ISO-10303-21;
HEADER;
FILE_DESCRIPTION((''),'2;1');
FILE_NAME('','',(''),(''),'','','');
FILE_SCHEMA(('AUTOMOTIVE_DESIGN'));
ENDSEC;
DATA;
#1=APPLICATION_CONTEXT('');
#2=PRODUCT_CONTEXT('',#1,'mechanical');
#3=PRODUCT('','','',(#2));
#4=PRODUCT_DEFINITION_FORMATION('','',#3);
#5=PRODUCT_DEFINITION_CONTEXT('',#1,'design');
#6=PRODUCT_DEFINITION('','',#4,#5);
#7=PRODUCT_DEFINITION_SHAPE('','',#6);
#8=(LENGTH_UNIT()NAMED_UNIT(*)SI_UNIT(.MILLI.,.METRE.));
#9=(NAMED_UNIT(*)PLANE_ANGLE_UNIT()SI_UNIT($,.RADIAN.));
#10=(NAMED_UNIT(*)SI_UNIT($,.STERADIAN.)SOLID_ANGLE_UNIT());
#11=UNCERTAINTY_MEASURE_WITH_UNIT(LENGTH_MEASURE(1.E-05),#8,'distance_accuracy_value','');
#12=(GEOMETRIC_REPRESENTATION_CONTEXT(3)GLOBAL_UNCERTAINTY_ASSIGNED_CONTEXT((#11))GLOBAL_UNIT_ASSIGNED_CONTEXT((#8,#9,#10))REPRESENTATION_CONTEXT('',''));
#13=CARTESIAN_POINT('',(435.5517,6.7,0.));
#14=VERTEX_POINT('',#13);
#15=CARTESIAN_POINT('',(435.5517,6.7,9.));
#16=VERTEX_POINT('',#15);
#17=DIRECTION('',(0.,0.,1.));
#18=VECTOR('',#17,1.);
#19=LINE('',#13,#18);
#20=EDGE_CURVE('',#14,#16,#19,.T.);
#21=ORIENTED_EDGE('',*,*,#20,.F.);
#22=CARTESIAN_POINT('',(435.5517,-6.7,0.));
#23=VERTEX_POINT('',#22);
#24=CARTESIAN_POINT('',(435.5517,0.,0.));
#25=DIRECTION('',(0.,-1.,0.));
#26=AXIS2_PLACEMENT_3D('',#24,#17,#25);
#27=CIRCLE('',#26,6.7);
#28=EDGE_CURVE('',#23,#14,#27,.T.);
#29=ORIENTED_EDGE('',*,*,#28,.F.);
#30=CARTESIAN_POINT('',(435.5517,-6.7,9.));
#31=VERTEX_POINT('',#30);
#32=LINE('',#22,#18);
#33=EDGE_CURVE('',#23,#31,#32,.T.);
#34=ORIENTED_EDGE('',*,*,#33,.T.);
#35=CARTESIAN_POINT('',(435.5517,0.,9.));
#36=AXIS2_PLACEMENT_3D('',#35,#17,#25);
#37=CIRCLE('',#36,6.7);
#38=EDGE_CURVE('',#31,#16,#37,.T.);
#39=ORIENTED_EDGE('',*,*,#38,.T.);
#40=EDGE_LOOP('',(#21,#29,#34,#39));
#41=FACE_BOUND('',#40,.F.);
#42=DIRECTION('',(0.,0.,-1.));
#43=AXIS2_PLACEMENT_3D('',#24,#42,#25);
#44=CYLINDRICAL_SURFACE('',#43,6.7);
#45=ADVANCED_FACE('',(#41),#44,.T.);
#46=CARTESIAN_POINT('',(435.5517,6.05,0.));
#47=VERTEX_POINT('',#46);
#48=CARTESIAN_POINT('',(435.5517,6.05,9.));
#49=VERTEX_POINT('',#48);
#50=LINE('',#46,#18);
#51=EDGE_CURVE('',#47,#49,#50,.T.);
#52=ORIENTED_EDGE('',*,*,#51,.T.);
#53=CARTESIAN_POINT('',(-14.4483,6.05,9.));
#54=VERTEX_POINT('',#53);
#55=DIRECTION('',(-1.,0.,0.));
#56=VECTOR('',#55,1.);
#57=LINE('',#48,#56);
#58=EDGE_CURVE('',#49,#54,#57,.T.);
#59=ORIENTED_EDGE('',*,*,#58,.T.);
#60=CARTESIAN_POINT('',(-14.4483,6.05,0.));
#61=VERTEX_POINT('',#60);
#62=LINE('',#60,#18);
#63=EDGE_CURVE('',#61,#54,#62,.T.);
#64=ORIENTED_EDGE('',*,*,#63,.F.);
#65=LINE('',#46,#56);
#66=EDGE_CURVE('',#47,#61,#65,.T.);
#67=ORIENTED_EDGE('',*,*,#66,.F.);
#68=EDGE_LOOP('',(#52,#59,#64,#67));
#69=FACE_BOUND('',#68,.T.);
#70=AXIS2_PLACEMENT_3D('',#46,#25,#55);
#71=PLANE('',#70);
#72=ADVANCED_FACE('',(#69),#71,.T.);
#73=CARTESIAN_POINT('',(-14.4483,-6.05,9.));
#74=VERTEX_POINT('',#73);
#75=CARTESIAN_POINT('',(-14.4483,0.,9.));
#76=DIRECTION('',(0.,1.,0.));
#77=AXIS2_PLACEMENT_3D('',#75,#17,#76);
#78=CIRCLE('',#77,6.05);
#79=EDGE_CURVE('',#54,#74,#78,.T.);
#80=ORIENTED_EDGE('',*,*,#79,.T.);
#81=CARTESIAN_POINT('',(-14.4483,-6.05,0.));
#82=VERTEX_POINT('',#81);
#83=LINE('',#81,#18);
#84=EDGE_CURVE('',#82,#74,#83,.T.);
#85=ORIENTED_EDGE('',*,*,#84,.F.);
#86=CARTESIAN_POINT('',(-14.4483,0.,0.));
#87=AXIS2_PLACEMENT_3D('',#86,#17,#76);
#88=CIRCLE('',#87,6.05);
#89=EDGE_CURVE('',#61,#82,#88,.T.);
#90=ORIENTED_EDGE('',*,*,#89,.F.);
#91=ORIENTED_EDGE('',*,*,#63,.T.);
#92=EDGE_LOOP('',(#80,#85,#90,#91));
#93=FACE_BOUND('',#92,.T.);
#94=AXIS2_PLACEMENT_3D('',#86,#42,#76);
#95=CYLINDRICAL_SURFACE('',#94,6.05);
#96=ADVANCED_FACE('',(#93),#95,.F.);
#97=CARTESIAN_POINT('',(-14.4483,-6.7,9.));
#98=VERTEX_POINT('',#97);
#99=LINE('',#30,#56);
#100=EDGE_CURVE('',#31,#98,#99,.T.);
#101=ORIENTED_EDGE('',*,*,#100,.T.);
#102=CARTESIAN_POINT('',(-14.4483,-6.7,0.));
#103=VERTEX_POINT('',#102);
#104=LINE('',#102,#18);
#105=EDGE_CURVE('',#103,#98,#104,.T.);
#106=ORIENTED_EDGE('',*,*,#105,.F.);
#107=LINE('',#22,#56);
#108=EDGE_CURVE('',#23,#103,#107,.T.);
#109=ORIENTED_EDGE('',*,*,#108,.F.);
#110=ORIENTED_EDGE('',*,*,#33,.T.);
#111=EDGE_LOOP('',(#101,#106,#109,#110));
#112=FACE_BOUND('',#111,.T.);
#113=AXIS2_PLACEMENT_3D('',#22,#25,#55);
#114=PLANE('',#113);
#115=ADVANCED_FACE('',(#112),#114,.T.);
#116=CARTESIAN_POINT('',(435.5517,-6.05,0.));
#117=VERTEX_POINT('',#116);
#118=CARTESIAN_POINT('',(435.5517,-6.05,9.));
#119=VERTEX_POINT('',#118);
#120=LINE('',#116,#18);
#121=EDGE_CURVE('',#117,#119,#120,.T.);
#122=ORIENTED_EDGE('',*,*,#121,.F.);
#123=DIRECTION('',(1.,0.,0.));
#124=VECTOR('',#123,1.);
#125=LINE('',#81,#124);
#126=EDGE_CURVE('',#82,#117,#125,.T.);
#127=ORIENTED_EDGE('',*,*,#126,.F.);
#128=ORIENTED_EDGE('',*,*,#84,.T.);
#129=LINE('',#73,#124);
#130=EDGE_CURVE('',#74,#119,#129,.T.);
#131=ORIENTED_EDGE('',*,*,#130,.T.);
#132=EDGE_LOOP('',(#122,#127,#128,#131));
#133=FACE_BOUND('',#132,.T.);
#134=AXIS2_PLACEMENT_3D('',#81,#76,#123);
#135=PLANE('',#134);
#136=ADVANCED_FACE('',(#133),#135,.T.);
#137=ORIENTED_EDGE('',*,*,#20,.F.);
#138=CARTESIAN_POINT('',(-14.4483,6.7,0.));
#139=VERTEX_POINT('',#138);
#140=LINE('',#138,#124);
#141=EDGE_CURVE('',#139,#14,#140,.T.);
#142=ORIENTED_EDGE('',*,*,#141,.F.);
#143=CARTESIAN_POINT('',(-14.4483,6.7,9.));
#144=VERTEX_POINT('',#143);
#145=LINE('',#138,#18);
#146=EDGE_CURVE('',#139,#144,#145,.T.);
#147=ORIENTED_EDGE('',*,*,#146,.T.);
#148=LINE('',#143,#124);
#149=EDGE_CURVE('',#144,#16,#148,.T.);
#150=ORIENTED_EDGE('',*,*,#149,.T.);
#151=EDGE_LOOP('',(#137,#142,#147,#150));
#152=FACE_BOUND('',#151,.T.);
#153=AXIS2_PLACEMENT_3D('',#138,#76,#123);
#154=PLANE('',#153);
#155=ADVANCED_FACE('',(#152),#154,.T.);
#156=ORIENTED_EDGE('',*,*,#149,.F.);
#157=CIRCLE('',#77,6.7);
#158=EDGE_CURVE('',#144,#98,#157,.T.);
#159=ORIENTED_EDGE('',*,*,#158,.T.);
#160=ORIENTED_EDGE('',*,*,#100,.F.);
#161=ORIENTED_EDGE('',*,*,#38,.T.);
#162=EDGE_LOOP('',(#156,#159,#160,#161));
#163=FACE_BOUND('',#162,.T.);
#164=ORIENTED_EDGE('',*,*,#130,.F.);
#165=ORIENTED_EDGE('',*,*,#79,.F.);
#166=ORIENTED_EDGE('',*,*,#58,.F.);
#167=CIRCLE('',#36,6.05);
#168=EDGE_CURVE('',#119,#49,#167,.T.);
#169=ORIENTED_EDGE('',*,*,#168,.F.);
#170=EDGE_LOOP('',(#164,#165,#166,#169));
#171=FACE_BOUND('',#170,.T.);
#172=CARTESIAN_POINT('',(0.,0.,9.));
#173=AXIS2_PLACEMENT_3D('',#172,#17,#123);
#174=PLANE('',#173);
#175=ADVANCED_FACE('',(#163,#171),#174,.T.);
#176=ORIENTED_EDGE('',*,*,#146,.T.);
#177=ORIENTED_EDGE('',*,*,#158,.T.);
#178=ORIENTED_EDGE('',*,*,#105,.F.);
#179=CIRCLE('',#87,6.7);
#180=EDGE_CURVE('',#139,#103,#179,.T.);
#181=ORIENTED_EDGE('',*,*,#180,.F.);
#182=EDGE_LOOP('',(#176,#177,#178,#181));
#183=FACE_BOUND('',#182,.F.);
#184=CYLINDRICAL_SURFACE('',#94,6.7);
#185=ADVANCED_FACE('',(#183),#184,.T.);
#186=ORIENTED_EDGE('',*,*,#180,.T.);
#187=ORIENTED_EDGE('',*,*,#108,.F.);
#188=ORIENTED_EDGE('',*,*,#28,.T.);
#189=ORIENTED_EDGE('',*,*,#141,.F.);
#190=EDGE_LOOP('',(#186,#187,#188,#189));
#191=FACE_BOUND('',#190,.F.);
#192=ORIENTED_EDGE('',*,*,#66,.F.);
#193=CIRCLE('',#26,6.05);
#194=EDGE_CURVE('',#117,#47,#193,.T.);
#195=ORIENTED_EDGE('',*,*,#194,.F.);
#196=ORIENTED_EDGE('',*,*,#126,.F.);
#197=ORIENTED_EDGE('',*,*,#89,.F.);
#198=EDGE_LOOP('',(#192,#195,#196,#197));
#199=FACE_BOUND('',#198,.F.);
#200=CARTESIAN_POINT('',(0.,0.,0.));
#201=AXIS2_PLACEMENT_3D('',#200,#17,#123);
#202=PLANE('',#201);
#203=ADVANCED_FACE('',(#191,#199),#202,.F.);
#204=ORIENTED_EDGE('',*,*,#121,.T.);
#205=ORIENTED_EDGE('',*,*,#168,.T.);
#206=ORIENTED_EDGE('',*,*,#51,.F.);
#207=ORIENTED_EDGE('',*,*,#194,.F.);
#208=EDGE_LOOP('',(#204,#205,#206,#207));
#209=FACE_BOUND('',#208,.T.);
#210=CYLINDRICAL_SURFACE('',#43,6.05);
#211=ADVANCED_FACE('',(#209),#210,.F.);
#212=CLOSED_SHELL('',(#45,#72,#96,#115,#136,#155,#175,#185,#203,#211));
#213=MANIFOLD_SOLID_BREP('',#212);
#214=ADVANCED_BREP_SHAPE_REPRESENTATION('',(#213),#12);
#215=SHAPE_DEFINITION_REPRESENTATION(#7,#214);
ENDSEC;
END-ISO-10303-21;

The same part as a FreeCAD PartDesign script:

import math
import FreeCAD as App
import Part
import Sketcher

V = App.Vector
Q = App.Units.Quantity

doc = App.newDocument("Part")
body = doc.addObject("PartDesign::Body", "Body")

# Sketch on XY plane
sketch1 = body.newObject("Sketcher::SketchObject", "Sketch")
sketch1.AttachmentSupport = (doc.getObject("XY_Plane"), [""])
sketch1.MapMode = "FlatFace"
sketch1.addGeometry([
    Part.LineSegment(V(436, 7, 0), V(-14, 7, 0)),  # 0
    Part.ArcOfCircle(Part.Circle(V(-14, 0, 0), V(0, 0, 1), 7), math.radians(90), math.radians(270)),  # 1
    Part.LineSegment(V(-14, -7, 0), V(436, -7, 0)),  # 2
    Part.ArcOfCircle(Part.Circle(V(436, 0, 0), V(0, 0, 1), 7), math.radians(-90), math.radians(90)),  # 3
    Part.LineSegment(V(436, -6, 0), V(-14, -6, 0)),  # 4
    Part.ArcOfCircle(Part.Circle(V(-14, 0, 0), V(0, 0, 1), 6), math.radians(90), math.radians(270)),  # 5
    Part.LineSegment(V(-14, 6, 0), V(436, 6, 0)),  # 6
    Part.ArcOfCircle(Part.Circle(V(436, 0, 0), V(0, 0, 1), 6), math.radians(-90), math.radians(90)),  # 7
], False)
sketch1.addConstraint([
    Sketcher.Constraint("Tangent", 0, 2, 1, 1),
    Sketcher.Constraint("Tangent", 1, 2, 2, 1),
    Sketcher.Constraint("Tangent", 2, 2, 3, 1),
    Sketcher.Constraint("Tangent", 3, 2, 0, 1),
    Sketcher.Constraint("Tangent", 4, 2, 5, 2),
    Sketcher.Constraint("Tangent", 5, 1, 6, 1),
    Sketcher.Constraint("Tangent", 6, 2, 7, 2),
    Sketcher.Constraint("Tangent", 7, 1, 4, 1),
    Sketcher.Constraint("Horizontal", 0),
    Sketcher.Constraint("Horizontal", 2),
    Sketcher.Constraint("Horizontal", 4),
    Sketcher.Constraint("Horizontal", 6),
    Sketcher.Constraint("Coincident", 5, 3, 1, 3),
    Sketcher.Constraint("PointOnObject", 1, 3, -1),
    Sketcher.Constraint("Vertical", 7, 3, 2, 2),
    Sketcher.Constraint("DistanceX", 0, 2, 0, 1, Q("450 mm")),
    Sketcher.Constraint("Radius", 5, Q("6.05 mm")),
    Sketcher.Constraint("Radius", 1, Q("6.7 mm")),
    Sketcher.Constraint("DistanceX", 1, 3, -1, 1, Q("14.4483 mm")),
])
pad1 = body.newObject("PartDesign::Pad", "Pad")
pad1.Profile = sketch1
pad1.Length = 9

doc.recompute()
